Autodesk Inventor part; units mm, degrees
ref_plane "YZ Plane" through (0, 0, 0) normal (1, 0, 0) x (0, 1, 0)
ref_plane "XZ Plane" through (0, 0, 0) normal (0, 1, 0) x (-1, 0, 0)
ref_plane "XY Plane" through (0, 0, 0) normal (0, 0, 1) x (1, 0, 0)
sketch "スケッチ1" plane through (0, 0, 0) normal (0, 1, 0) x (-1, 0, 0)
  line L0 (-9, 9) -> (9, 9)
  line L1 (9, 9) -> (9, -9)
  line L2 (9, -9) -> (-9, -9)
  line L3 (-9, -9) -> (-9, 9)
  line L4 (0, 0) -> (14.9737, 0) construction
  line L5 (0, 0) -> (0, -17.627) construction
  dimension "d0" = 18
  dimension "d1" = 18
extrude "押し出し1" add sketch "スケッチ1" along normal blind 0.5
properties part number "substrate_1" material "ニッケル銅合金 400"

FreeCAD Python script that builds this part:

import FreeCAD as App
import Part
import Sketcher
Q = App.Units.Quantity


def add_polygon(sketch, points):
    """Adds a closed chain of lines whose ends are joined by coincident constraints."""
    first, n = sketch.GeometryCount, len(points)
    for a, b in zip(points, points[1:] + points[:1]):
        sketch.addGeometry(Part.LineSegment(App.Vector(*a, 0), App.Vector(*b, 0)), False)
    for i in range(n):
        sketch.addConstraint(Sketcher.Constraint("Coincident", first + i, 2, first + (i + 1) % n, 1))

doc = App.newDocument("Part")
body = doc.addObject("PartDesign::Body", "Body")

sketch1 = body.newObject("Sketcher::SketchObject", "Sketch")
sketch1.AttachmentSupport = (doc.getObject("XZ_Plane"), [""])
sketch1.MapMode = "FlatFace"
add_polygon(sketch1, [(-9, 9), (9, 9), (9, -9), (-9, -9)])
sketch1.addConstraint(Sketcher.Constraint("Horizontal", 0))
sketch1.addConstraint(Sketcher.Constraint("Vertical", 1))
sketch1.addConstraint(Sketcher.Constraint("Horizontal", 2))
sketch1.addConstraint(Sketcher.Constraint("Vertical", 3))
sketch1.addConstraint(Sketcher.Constraint("Symmetric", 0, 2, 2, 2, -1, 1))
sketch1.addConstraint(Sketcher.Constraint("Equal", 2, 1))
sketch1.addConstraint(Sketcher.Constraint("DistanceX", 0, 1, 0, 2, Q("18 mm")))
pad1 = body.newObject("PartDesign::Pad", "Pad")
pad1.Profile = sketch1
pad1.Length = 0.5
pad1.Reversed = True

doc.recompute()
